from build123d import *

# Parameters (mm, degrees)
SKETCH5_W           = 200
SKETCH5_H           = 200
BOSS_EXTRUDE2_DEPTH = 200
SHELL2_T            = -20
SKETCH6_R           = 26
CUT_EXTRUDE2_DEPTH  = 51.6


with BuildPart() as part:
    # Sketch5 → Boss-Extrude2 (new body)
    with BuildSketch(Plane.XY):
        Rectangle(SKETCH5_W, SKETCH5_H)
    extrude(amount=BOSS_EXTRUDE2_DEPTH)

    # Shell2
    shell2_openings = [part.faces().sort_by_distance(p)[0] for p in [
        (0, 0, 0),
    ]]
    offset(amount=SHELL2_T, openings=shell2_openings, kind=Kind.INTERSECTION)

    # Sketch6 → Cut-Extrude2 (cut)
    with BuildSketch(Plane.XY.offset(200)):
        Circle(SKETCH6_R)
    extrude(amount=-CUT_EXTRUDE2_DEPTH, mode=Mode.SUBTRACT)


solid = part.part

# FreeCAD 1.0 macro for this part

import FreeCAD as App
import Part
import Sketcher
Q = App.Units.Quantity


def faces_at(feature, points):
    """Names of the faces that lie closest to the given points."""
    faces = feature.Shape.Faces
    near = lambda p: min(range(len(faces)), key=lambda i: faces[i].distToShape(Part.Vertex(*p))[0])
    return sorted({f"Face{near(p) + 1}" for p in points})


def add_polygon(sketch, points):
    """Adds a closed chain of lines whose ends are joined by coincident constraints."""
    first, n = sketch.GeometryCount, len(points)
    for a, b in zip(points, points[1:] + points[:1]):
        sketch.addGeometry(Part.LineSegment(App.Vector(*a, 0), App.Vector(*b, 0)), False)
    for i in range(n):
        sketch.addConstraint(Sketcher.Constraint("Coincident", first + i, 2, first + (i + 1) % n, 1))

doc = App.newDocument("Part")
params = doc.addObject("Spreadsheet::Sheet", "Params")
for row, (alias, value) in enumerate([
    ("sketch1_width", "200 mm"),
    ("pad1_length", "200 mm"),
    ("thickness_wall", "20 mm"),
    ("sketch2_diameter", "52 mm"),
    ("pocket1_length", "51.6 mm"),
], start=1):
    params.set(f"A{row}", alias)
    params.set(f"B{row}", "=" + value)
    params.setAlias(f"B{row}", alias)

body = doc.addObject("PartDesign::Body", "Body")

# Sketch on XY plane
sketch1 = body.newObject("Sketcher::SketchObject", "Sketch")
sketch1.AttachmentSupport = (doc.getObject("XY_Plane"), [""])
sketch1.MapMode = "FlatFace"
add_polygon(sketch1, [(-100, 100), (-100, -100), (100, -100), (100, 100)])  # lines 0-3
sketch1.addConstraint(Sketcher.Constraint("Vertical", 0))
sketch1.addConstraint(Sketcher.Constraint("Horizontal", 1))
sketch1.addConstraint(Sketcher.Constraint("Vertical", 2))
sketch1.addConstraint(Sketcher.Constraint("Horizontal", 3))
sketch1.addConstraint(Sketcher.Constraint("Symmetric", 0, 2, 2, 2, -1, 1))
sketch1.addConstraint(Sketcher.Constraint("Equal", 3, 0))
sketch1.addConstraint(Sketcher.Constraint("DistanceX", 1, 1, 1, 2, Q("200 mm")))
sketch1.setExpression("Constraints[10]", "Params.sketch1_width")
pad1 = body.newObject("PartDesign::Pad", "Pad")
pad1.Profile = sketch1
pad1.setExpression("Length", "Params.pad1_length")
doc.recompute()

thickness = body.newObject("PartDesign::Thickness", "Thickness")
thickness.Base = (pad1, faces_at(pad1, [(0, 0, 0)]))
thickness.setExpression("Value", "Params.thickness_wall")
thickness.Reversed = True
thickness.Join = "Intersection"

# Sketch on XY plane
sketch2 = body.newObject("Sketcher::SketchObject", "Sketch001")
sketch2.AttachmentSupport = (doc.getObject("XY_Plane"), [""])
sketch2.MapMode = "FlatFace"
sketch2.AttachmentOffset = App.Placement(App.Vector(0, 0, 200), App.Rotation())
sketch2.addGeometry(Part.Circle(App.Vector(0, 0, 0), App.Vector(0, 0, 1), 26), False)
sketch2.addConstraint(Sketcher.Constraint("Coincident", 0, 3, -1, 1))
sketch2.addConstraint(Sketcher.Constraint("Diameter", 0, Q("52 mm")))
sketch2.setExpression("Constraints[1]", "Params.sketch2_diameter")
pocket1 = body.newObject("PartDesign::Pocket", "Pocket")
pocket1.Profile = sketch2
pocket1.setExpression("Length", "Params.pocket1_length")

doc.recompute()
